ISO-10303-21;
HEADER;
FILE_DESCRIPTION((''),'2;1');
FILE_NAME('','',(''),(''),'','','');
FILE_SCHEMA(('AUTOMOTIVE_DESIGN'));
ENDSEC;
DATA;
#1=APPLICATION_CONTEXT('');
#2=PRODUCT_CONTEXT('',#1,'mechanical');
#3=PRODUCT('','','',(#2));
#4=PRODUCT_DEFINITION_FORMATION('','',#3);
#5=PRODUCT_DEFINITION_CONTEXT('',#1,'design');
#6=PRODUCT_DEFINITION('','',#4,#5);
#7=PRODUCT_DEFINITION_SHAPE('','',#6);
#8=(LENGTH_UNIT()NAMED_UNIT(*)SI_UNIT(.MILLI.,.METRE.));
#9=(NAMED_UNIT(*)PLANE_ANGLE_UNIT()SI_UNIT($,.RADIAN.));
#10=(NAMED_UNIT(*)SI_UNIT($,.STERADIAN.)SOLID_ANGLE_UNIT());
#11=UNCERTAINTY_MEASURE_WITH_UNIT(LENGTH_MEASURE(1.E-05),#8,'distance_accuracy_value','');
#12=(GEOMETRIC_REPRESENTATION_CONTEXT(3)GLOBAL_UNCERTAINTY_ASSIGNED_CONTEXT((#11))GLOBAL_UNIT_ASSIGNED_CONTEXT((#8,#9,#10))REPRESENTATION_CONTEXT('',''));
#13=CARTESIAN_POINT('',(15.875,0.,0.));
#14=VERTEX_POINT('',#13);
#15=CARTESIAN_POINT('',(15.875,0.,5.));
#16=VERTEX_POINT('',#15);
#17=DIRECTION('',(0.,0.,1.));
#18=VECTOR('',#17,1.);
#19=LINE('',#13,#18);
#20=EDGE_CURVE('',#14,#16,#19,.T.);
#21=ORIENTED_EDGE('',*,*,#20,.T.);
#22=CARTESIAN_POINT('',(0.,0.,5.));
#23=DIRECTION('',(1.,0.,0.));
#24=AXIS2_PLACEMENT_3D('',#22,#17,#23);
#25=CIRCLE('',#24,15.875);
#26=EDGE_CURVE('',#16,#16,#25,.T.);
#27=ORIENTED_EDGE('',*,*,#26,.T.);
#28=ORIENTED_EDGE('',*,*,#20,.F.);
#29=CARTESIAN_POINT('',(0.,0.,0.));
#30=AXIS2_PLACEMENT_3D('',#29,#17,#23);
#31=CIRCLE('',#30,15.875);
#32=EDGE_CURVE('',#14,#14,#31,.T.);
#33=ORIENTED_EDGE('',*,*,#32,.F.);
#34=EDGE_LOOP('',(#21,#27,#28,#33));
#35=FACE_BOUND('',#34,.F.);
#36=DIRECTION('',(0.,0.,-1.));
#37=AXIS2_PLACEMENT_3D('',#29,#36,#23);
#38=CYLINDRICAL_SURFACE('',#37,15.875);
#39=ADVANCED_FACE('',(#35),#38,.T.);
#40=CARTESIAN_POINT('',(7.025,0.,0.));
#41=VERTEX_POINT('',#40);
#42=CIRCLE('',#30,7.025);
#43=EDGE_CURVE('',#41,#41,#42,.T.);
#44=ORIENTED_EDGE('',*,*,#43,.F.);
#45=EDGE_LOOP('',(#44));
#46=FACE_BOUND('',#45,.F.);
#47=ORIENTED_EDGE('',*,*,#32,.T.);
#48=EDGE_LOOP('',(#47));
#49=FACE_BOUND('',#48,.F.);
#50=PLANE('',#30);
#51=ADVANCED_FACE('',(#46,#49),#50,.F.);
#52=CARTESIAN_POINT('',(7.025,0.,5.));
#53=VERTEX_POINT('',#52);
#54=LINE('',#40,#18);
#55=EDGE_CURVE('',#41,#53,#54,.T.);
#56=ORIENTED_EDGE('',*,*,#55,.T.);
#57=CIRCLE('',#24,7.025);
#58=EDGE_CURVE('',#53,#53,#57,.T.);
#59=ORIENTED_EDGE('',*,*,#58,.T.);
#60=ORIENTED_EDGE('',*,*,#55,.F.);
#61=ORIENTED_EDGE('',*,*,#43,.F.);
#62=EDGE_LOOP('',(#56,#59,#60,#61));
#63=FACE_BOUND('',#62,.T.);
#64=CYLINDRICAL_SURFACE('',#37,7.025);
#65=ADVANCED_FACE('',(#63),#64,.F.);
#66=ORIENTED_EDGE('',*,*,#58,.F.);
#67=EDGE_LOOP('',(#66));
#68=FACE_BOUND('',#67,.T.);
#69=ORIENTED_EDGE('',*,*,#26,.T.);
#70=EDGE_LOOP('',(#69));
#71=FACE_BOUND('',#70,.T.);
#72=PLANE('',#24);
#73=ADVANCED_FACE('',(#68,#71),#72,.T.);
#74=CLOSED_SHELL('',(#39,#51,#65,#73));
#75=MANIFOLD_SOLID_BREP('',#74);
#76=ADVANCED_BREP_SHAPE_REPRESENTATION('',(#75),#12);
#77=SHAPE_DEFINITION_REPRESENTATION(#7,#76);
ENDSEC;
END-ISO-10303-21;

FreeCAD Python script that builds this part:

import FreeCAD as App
import Part
import Sketcher
Q = App.Units.Quantity

doc = App.newDocument("Part")
body = doc.addObject("PartDesign::Body", "Body")

sketch1 = body.newObject("Sketcher::SketchObject", "Sketch")
sketch1.AttachmentSupport = (doc.getObject("XY_Plane"), [""])
sketch1.MapMode = "FlatFace"
sketch1.addGeometry([
    Part.Circle(App.Vector(0, 0, 0), App.Vector(0, 0, 1), 15.875),
    Part.Circle(App.Vector(0, 0, 0), App.Vector(0, 0, 1), 7.025),
], False)
sketch1.addConstraint([
    Sketcher.Constraint("Coincident", 0, 3, -1, 1),
    Sketcher.Constraint("Coincident", 1, 3, -1, 1),
    Sketcher.Constraint("Diameter", 0, Q("31.75 mm")),
    Sketcher.Constraint("Diameter", 1, Q("14.05 mm")),
])
pad1 = body.newObject("PartDesign::Pad", "Pad")
pad1.Profile = sketch1
pad1.Length = 5

doc.recompute()
